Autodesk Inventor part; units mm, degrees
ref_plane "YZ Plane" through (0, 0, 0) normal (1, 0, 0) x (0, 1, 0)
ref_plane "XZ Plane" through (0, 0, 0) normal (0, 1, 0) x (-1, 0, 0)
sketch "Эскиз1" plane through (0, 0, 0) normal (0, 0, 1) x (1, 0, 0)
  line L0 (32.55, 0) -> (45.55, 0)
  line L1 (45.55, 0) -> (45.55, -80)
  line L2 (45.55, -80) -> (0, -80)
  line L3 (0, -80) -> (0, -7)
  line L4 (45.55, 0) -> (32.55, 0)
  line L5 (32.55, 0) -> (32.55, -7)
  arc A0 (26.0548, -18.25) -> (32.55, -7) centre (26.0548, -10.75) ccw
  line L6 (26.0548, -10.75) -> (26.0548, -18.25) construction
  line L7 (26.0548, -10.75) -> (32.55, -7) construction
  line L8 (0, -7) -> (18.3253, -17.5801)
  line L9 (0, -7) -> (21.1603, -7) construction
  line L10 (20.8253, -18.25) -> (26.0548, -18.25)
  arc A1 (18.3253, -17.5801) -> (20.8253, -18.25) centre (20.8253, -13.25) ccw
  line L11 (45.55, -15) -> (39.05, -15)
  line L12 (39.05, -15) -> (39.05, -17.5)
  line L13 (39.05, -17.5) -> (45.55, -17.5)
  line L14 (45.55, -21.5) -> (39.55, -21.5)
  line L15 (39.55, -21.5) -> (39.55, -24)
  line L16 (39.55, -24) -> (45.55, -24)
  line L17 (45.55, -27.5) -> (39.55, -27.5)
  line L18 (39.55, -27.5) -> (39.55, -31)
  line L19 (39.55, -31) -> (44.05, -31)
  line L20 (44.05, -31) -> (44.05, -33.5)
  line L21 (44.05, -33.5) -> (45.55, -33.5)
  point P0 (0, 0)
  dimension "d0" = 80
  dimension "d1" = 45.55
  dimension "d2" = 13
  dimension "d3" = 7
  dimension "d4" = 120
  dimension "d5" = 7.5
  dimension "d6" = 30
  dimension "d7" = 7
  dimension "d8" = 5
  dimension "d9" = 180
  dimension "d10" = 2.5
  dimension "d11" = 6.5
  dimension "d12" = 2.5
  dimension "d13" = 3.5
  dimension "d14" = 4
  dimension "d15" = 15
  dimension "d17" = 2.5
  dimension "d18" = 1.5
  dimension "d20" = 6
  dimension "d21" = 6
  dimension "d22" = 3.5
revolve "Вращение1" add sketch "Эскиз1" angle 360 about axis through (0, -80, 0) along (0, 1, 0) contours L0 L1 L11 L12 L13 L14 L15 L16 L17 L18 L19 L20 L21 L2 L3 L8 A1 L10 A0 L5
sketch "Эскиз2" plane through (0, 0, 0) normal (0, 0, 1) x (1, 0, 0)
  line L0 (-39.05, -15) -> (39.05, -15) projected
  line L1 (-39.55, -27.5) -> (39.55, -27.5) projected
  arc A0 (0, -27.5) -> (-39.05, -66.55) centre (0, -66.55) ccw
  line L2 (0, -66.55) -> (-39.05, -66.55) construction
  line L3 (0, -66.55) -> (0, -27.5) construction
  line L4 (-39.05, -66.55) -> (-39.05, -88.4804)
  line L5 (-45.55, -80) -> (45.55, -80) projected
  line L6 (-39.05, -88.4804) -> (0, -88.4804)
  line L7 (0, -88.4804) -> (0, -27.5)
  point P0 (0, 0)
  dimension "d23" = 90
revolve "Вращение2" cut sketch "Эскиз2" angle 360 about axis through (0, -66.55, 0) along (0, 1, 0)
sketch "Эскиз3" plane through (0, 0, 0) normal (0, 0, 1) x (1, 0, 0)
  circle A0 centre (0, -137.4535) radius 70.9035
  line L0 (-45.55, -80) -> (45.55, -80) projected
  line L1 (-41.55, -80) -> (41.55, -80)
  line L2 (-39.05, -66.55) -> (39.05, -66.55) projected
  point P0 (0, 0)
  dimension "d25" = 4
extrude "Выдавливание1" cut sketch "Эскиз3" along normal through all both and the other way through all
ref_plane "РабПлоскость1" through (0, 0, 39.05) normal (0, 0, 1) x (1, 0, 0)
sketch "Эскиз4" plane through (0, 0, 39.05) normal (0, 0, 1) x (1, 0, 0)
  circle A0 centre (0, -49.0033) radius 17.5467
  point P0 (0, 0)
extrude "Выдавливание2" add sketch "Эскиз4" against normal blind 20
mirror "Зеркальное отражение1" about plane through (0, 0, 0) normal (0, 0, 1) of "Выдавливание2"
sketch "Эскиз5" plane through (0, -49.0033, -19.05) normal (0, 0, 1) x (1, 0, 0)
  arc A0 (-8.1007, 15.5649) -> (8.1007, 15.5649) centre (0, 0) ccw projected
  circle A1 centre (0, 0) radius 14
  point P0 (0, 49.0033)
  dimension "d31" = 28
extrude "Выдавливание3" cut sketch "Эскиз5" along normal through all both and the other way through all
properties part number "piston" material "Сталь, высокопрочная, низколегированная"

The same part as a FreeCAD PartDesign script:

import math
import FreeCAD as App
import Part
import Sketcher
from FreeCAD import Vector
Q = App.Units.Quantity

doc = App.newDocument("Part")
body = doc.addObject("PartDesign::Body", "Body")

# Sketch on XY plane
sketch1 = body.newObject("Sketcher::SketchObject", "Sketch")
sketch1.AttachmentSupport = (doc.getObject("XY_Plane"), [""])
sketch1.MapMode = "FlatFace"
sketch1.addGeometry(Part.LineSegment(Vector(45.5, 0, 0), Vector(32.5, 0, 0)), False)
sketch1.addGeometry(Part.LineSegment(Vector(32.5, 0, 0), Vector(32.5, -7, 0)), False)
sketch1.addGeometry(Part.ArcOfCircle(Part.Circle(Vector(26.1, -10.8, 0), Vector(0, 0, 1), 7.5), math.radians(-90), math.radians(30)), False)
sketch1.addGeometry(Part.LineSegment(Vector(26.1, -18.2, 0), Vector(20.8, -18.2, 0)), False)
sketch1.addGeometry(Part.ArcOfCircle(Part.Circle(Vector(20.8, -13.2, 0), Vector(0, 0, 1), 5), math.radians(-120), math.radians(-90)), False)
sketch1.addGeometry(Part.LineSegment(Vector(18.3, -17.6, 0), Vector(0, -7, 0)), False)
sketch1.addGeometry(Part.LineSegment(Vector(0, -7, 0), Vector(0, -80, 0)), False)
sketch1.addGeometry(Part.LineSegment(Vector(0, -80, 0), Vector(45.5, -80, 0)), False)
sketch1.addGeometry(Part.LineSegment(Vector(45.5, -80, 0), Vector(45.5, -33.5, 0)), False)
sketch1.addGeometry(Part.LineSegment(Vector(45.5, -33.5, 0), Vector(44, -33.5, 0)), False)
sketch1.addGeometry(Part.LineSegment(Vector(44, -33.5, 0), Vector(44, -31, 0)), False)
sketch1.addGeometry(Part.LineSegment(Vector(44, -31, 0), Vector(39.5, -31, 0)), False)
sketch1.addGeometry(Part.LineSegment(Vector(39.5, -31, 0), Vector(39.5, -27.5, 0)), False)
sketch1.addGeometry(Part.LineSegment(Vector(39.5, -27.5, 0), Vector(45.5, -27.5, 0)), False)
sketch1.addGeometry(Part.LineSegment(Vector(45.5, -27.5, 0), Vector(45.5, -24, 0)), False)
sketch1.addGeometry(Part.LineSegment(Vector(45.5, -24, 0), Vector(39.5, -24, 0)), False)
sketch1.addGeometry(Part.LineSegment(Vector(39.5, -24, 0), Vector(39.5, -21.5, 0)), False)
sketch1.addGeometry(Part.LineSegment(Vector(39.5, -21.5, 0), Vector(45.5, -21.5, 0)), False)
sketch1.addGeometry(Part.LineSegment(Vector(45.5, -21.5, 0), Vector(45.5, -17.5, 0)), False)
sketch1.addGeometry(Part.LineSegment(Vector(45.5, -17.5, 0), Vector(39, -17.5, 0)), False)
sketch1.addGeometry(Part.LineSegment(Vector(39, -17.5, 0), Vector(39, -15, 0)), False)
sketch1.addGeometry(Part.LineSegment(Vector(39, -15, 0), Vector(45.5, -15, 0)), False)
sketch1.addGeometry(Part.LineSegment(Vector(45.5, -15, 0), Vector(45.5, 0, 0)), False)
sketch1.addConstraint(Sketcher.Constraint("Coincident", 0, 2, 1, 1))
sketch1.addConstraint(Sketcher.Constraint("Coincident", 1, 2, 2, 2))
sketch1.addConstraint(Sketcher.Constraint("Tangent", 2, 1, 3, 1))
sketch1.addConstraint(Sketcher.Constraint("Tangent", 3, 2, 4, 2))
sketch1.addConstraint(Sketcher.Constraint("Tangent", 4, 1, 5, 1))
sketch1.addConstraint(Sketcher.Constraint("Coincident", 5, 2, 6, 1))
sketch1.addConstraint(Sketcher.Constraint("Coincident", 6, 2, 7, 1))
sketch1.addConstraint(Sketcher.Constraint("Coincident", 7, 2, 8, 1))
sketch1.addConstraint(Sketcher.Constraint("Coincident", 8, 2, 9, 1))
sketch1.addConstraint(Sketcher.Constraint("Coincident", 9, 2, 10, 1))
sketch1.addConstraint(Sketcher.Constraint("Coincident", 10, 2, 11, 1))
sketch1.addConstraint(Sketcher.Constraint("Coincident", 11, 2, 12, 1))
sketch1.addConstraint(Sketcher.Constraint("Coincident", 12, 2, 13, 1))
sketch1.addConstraint(Sketcher.Constraint("Coincident", 13, 2, 14, 1))
sketch1.addConstraint(Sketcher.Constraint("Coincident", 14, 2, 15, 1))
sketch1.addConstraint(Sketcher.Constraint("Coincident", 15, 2, 16, 1))
sketch1.addConstraint(Sketcher.Constraint("Coincident", 16, 2, 17, 1))
sketch1.addConstraint(Sketcher.Constraint("Coincident", 17, 2, 18, 1))
sketch1.addConstraint(Sketcher.Constraint("Coincident", 18, 2, 19, 1))
sketch1.addConstraint(Sketcher.Constraint("Coincident", 19, 2, 20, 1))
sketch1.addConstraint(Sketcher.Constraint("Coincident", 20, 2, 21, 1))
sketch1.addConstraint(Sketcher.Constraint("Coincident", 21, 2, 22, 1))
sketch1.addConstraint(Sketcher.Constraint("Coincident", 22, 2, 0, 1))
sketch1.addConstraint(Sketcher.Constraint("Horizontal", 0))
sketch1.addConstraint(Sketcher.Constraint("Vertical", 1))
sketch1.addConstraint(Sketcher.Constraint("Horizontal", 3))
sketch1.addConstraint(Sketcher.Constraint("Vertical", 6))
sketch1.addConstraint(Sketcher.Constraint("Horizontal", 7))
sketch1.addConstraint(Sketcher.Constraint("Vertical", 8))
sketch1.addConstraint(Sketcher.Constraint("Horizontal", 9))
sketch1.addConstraint(Sketcher.Constraint("Vertical", 10))
sketch1.addConstraint(Sketcher.Constraint("Horizontal", 11))
sketch1.addConstraint(Sketcher.Constraint("Vertical", 12))
sketch1.addConstraint(Sketcher.Constraint("Horizontal", 13))
sketch1.addConstraint(Sketcher.Constraint("Vertical", 14))
sketch1.addConstraint(Sketcher.Constraint("Horizontal", 15))
sketch1.addConstraint(Sketcher.Constraint("Vertical", 16))
sketch1.addConstraint(Sketcher.Constraint("Horizontal", 17))
sketch1.addConstraint(Sketcher.Constraint("Vertical", 18))
sketch1.addConstraint(Sketcher.Constraint("Horizontal", 19))
sketch1.addConstraint(Sketcher.Constraint("Vertical", 20))
sketch1.addConstraint(Sketcher.Constraint("Horizontal", 21))
sketch1.addConstraint(Sketcher.Constraint("Vertical", 22))
sketch1.addConstraint(Sketcher.Constraint("PointOnObject", 0, 2, -1))
sketch1.addConstraint(Sketcher.Constraint("PointOnObject", 5, 2, -2))
sketch1.addConstraint(Sketcher.Constraint("Horizontal", 1, 2, 5, 2))
sketch1.addConstraint(Sketcher.Constraint("Vertical", 8, 2, 13, 2))
sketch1.addConstraint(Sketcher.Constraint("Vertical", 12, 2, 15, 2))
sketch1.addConstraint(Sketcher.Constraint("Vertical", 14, 2, 17, 2))
sketch1.addConstraint(Sketcher.Constraint("Vertical", 18, 2, 21, 2))
sketch1.addConstraint(Sketcher.Constraint("Equal", 12, 14))
sketch1.addConstraint(Sketcher.Constraint("Equal", 10, 16))
sketch1.addConstraint(Sketcher.Constraint("Equal", 16, 20))
sketch1.addConstraint(Sketcher.Constraint("Radius", 4, Q("5 mm")))
sketch1.addConstraint(Sketcher.Constraint("Radius", 2, Q("7.5 mm")))
sketch1.addConstraint(Sketcher.Constraint("DistanceX", 0, 2, 0, 1, Q("13 mm")))
sketch1.addConstraint(Sketcher.Constraint("DistanceX", 13, 1, 13, 2, Q("6 mm")))
sketch1.addConstraint(Sketcher.Constraint("DistanceY", 1, 2, 1, 1, Q("7 mm")))
sketch1.addConstraint(Sketcher.Constraint("DistanceY", 18, 1, 18, 2, Q("4 mm")))
sketch1.addConstraint(Sketcher.Constraint("DistanceY", 22, 1, 22, 2, Q("15 mm")))
sketch1.addConstraint(Sketcher.Constraint("DistanceX", 9, 2, 9, 1, Q("1.5 mm")))
sketch1.addConstraint(Sketcher.Constraint("DistanceX", 19, 2, 19, 1, Q("6.5 mm")))
sketch1.addConstraint(Sketcher.Constraint("DistanceY", 10, 1, 10, 2, Q("2.5 mm")))
sketch1.addConstraint(Sketcher.Constraint("DistanceY", 12, 1, 12, 2, Q("3.5 mm")))
sketch1.addConstraint(Sketcher.Constraint("DistanceY", 6, 2, -1, 1, Q("80 mm")))
sketch1.addConstraint(Sketcher.Constraint("DistanceX", 7, 1, 7, 2, Q("45.55 mm")))
sketch1.addConstraint(Sketcher.Constraint("DistanceX", 4, 1, 3, 2, Q("2.5 mm")))
sketch1.addConstraint(Sketcher.Constraint("DistanceY", 2, 3, -1, 1, Q("10.75 mm")))
revolution = body.newObject("PartDesign::Revolution", "Revolution")
revolution.Profile = sketch1
revolution.ReferenceAxis = (sketch1, ["V_Axis"])
revolution.Angle = 360

# Sketch on XY plane
sketch2 = body.newObject("Sketcher::SketchObject", "Sketch001")
sketch2.AttachmentSupport = (doc.getObject("XY_Plane"), [""])
sketch2.MapMode = "FlatFace"
sketch2.addGeometry(Part.ArcOfCircle(Part.Circle(Vector(0, -67, 0), Vector(0, 0, 1), 39), math.radians(90), math.radians(180)), False)
sketch2.addGeometry(Part.LineSegment(Vector(-39, -67, 0), Vector(-39, -88, 0)), False)
sketch2.addGeometry(Part.LineSegment(Vector(-39, -88, 0), Vector(0, -88, 0)), False)
sketch2.addGeometry(Part.LineSegment(Vector(0, -88, 0), Vector(0, -28, 0)), False)
sketch2.addConstraint(Sketcher.Constraint("Tangent", 0, 2, 1, 1))
sketch2.addConstraint(Sketcher.Constraint("Coincident", 1, 2, 2, 1))
sketch2.addConstraint(Sketcher.Constraint("Coincident", 2, 2, 3, 1))
sketch2.addConstraint(Sketcher.Constraint("Coincident", 3, 2, 0, 1))
sketch2.addConstraint(Sketcher.Constraint("Vertical", 1))
sketch2.addConstraint(Sketcher.Constraint("Horizontal", 2))
sketch2.addConstraint(Sketcher.Constraint("Vertical", 3))
sketch2.addConstraint(Sketcher.Constraint("PointOnObject", 0, 3, -2))
sketch2.addConstraint(Sketcher.Constraint("PointOnObject", 2, 2, -2))
sketch2.addConstraint(Sketcher.Constraint("Radius", 0, Q("39.05 mm")))
sketch2.addConstraint(Sketcher.Constraint("DistanceY", 3, 2, -1, 1, Q("27.5 mm")))
sketch2.addConstraint(Sketcher.Constraint("DistanceY", 1, 2, 1, 1, Q("21.9304 mm")))
groove = body.newObject("PartDesign::Groove", "Groove")
groove.Profile = sketch2
groove.ReferenceAxis = (sketch2, ["V_Axis"])
groove.Angle = 360

# Sketch on XY plane
sketch3 = body.newObject("Sketcher::SketchObject", "Sketch002")
sketch3.AttachmentSupport = (doc.getObject("XY_Plane"), [""])
sketch3.MapMode = "FlatFace"
sketch3.addGeometry(Part.Circle(Vector(0, -137, 0), Vector(0, 0, 1), 71), False)
sketch3.addConstraint(Sketcher.Constraint("PointOnObject", 0, 3, -2))
sketch3.addConstraint(Sketcher.Constraint("Diameter", 0, Q("141.807 mm")))
sketch3.addConstraint(Sketcher.Constraint("DistanceY", 0, 3, -1, 1, Q("137.4535 mm")))
pocket1 = body.newObject("PartDesign::Pocket", "Pocket")
pocket1.Profile = sketch3
pocket1.Type = "ThroughAll"
pocket1.Midplane = True

# Sketch on XY plane
sketch4 = body.newObject("Sketcher::SketchObject", "Sketch003")
sketch4.AttachmentSupport = (doc.getObject("XY_Plane"), [""])
sketch4.MapMode = "FlatFace"
sketch4.AttachmentOffset = App.Placement(Vector(0, 0, 39.05), App.Rotation())
sketch4.addGeometry(Part.Circle(Vector(0, -49, 0), Vector(0, 0, 1), 18), False)
sketch4.addConstraint(Sketcher.Constraint("PointOnObject", 0, 3, -2))
sketch4.addConstraint(Sketcher.Constraint("Diameter", 0, Q("35.0934 mm")))
sketch4.addConstraint(Sketcher.Constraint("DistanceY", 0, 3, -1, 1, Q("49.0033 mm")))
pad1 = body.newObject("PartDesign::Pad", "Pad")
pad1.Profile = sketch4
pad1.Length = 20
pad1.Reversed = True
doc.recompute()

mirrored = body.newObject("PartDesign::Mirrored", "Mirrored")
mirrored.Originals = [pad1]
mirrored.MirrorPlane = (doc.getObject("XY_Plane"), [""])
body.Tip = mirrored

# Sketch on XY plane
sketch5 = body.newObject("Sketcher::SketchObject", "Sketch004")
sketch5.AttachmentSupport = (doc.getObject("XY_Plane"), [""])
sketch5.MapMode = "FlatFace"
sketch5.AttachmentOffset = App.Placement(Vector(0, 0, -19.05), App.Rotation())
sketch5.addGeometry(Part.Circle(Vector(0, -49, 0), Vector(0, 0, 1), 14), False)
sketch5.addConstraint(Sketcher.Constraint("PointOnObject", 0, 3, -2))
sketch5.addConstraint(Sketcher.Constraint("Diameter", 0, Q("28 mm")))
sketch5.addConstraint(Sketcher.Constraint("DistanceY", 0, 3, -1, 1, Q("49.0033 mm")))
pocket2 = body.newObject("PartDesign::Pocket", "Pocket001")
pocket2.Profile = sketch5
pocket2.Type = "ThroughAll"
pocket2.Midplane = True

doc.recompute()
